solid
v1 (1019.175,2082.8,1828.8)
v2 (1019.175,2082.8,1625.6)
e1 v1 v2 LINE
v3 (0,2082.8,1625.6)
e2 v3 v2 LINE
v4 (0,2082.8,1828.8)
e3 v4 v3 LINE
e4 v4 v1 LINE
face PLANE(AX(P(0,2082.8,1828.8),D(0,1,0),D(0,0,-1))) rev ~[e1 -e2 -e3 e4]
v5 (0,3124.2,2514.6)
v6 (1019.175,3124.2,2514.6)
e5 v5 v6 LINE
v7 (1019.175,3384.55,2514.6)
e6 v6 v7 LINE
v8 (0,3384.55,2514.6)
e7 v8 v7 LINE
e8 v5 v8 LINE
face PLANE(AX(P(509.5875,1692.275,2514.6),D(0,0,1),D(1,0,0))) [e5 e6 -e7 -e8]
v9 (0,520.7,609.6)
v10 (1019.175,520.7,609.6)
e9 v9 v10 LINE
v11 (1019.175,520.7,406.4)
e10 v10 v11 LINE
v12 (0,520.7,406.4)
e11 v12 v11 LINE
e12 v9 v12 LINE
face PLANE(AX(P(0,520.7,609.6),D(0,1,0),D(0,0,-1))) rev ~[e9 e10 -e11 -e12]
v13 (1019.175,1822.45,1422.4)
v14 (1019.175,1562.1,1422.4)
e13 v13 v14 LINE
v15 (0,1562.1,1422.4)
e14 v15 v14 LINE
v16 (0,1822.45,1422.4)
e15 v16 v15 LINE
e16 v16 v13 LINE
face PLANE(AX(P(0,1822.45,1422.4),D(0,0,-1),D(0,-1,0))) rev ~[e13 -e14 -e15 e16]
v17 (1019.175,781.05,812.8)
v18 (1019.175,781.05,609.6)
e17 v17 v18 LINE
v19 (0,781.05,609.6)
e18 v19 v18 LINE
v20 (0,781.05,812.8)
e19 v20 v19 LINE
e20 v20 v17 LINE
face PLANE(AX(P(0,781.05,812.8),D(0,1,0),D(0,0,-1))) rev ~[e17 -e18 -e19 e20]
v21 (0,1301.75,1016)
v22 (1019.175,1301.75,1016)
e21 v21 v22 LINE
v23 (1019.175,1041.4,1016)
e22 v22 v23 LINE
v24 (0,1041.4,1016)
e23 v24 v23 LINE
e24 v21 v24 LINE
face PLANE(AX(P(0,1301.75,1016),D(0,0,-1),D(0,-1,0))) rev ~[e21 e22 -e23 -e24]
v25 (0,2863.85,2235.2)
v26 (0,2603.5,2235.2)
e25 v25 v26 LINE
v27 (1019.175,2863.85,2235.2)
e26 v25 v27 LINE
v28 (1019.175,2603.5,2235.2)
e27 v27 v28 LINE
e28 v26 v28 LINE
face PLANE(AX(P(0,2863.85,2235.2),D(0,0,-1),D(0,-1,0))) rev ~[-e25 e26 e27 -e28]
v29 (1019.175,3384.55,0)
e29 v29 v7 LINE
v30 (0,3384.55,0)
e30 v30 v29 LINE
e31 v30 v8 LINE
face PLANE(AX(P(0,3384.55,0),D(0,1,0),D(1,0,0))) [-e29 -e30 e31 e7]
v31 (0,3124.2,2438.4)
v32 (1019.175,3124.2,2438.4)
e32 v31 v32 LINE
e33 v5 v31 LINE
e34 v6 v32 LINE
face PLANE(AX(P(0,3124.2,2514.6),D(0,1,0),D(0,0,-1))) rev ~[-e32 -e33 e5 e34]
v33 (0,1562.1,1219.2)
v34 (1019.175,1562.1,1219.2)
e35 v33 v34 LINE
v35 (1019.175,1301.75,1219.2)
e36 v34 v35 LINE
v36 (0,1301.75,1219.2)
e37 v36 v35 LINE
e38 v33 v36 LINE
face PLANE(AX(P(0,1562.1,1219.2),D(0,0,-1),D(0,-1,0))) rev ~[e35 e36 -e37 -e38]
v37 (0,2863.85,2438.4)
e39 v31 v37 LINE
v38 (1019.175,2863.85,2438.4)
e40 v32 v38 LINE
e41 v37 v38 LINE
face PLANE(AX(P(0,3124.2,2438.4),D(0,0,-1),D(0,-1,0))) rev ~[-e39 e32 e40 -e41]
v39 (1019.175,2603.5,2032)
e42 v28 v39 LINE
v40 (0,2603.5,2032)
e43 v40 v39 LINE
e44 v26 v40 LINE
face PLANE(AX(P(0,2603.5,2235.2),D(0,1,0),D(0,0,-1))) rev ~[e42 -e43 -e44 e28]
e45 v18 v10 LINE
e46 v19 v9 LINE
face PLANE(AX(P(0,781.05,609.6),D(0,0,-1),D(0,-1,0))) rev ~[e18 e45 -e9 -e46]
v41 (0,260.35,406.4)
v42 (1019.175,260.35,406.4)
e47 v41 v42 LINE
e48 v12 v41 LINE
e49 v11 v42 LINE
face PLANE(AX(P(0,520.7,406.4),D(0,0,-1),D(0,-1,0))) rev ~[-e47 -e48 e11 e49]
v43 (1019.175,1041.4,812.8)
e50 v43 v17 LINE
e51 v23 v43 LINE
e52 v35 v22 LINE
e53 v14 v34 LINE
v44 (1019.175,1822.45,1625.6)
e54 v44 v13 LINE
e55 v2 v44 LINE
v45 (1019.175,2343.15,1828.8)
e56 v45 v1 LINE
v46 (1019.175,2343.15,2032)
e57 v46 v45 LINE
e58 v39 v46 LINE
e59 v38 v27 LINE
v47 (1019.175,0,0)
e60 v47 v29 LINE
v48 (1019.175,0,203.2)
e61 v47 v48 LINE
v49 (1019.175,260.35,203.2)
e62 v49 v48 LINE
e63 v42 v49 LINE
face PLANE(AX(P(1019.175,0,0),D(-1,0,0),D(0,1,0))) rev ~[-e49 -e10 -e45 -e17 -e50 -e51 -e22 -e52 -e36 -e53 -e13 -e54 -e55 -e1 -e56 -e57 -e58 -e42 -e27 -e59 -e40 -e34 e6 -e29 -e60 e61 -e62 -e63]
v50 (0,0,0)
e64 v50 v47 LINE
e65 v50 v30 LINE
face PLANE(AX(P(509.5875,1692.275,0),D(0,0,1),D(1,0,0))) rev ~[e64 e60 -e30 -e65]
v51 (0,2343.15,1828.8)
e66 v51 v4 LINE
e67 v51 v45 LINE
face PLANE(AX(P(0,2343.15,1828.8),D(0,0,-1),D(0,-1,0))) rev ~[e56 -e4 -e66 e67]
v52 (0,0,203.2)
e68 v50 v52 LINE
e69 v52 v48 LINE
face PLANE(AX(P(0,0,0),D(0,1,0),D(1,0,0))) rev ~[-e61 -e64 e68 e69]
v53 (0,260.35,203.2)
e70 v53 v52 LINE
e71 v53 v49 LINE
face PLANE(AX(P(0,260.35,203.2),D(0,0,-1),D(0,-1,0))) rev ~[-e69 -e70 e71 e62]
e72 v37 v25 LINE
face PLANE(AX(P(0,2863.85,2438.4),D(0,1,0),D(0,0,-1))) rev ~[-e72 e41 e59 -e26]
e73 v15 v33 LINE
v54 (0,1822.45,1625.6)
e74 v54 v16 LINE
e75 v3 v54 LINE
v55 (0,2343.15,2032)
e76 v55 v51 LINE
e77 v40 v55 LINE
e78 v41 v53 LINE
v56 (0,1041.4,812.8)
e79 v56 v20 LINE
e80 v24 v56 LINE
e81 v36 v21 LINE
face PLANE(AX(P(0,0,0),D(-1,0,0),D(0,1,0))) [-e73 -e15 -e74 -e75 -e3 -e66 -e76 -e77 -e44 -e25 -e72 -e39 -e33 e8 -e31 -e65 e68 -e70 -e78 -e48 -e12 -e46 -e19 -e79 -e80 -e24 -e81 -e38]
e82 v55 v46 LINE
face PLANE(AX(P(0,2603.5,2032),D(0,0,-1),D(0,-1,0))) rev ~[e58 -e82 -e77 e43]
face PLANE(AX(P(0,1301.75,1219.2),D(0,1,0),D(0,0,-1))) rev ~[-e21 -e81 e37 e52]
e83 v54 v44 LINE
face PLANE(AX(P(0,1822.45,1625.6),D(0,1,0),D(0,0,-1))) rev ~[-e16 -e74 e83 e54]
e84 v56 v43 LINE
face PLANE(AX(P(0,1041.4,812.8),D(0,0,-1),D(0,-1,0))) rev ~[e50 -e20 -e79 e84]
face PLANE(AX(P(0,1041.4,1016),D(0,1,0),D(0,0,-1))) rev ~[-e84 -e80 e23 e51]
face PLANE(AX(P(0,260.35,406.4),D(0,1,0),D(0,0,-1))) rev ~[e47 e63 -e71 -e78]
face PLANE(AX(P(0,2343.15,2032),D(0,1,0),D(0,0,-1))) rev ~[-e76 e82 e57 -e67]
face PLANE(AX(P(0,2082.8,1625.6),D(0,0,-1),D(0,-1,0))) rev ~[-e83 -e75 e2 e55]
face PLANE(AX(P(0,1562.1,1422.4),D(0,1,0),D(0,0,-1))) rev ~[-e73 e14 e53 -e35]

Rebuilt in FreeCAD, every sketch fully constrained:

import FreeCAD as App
import Part
import Sketcher
Q = App.Units.Quantity


def add_polygon(sketch, points):
    """Adds a closed chain of lines whose ends are joined by coincident constraints."""
    first, n = sketch.GeometryCount, len(points)
    for a, b in zip(points, points[1:] + points[:1]):
        sketch.addGeometry(Part.LineSegment(App.Vector(*a, 0), App.Vector(*b, 0)), False)
    for i in range(n):
        sketch.addConstraint(Sketcher.Constraint("Coincident", first + i, 2, first + (i + 1) % n, 1))

doc = App.newDocument("Part")
body = doc.addObject("PartDesign::Body", "Body")

# Sketch on XY plane
sketch1 = doc.addObject("Sketcher::SketchObject", "Sketch")
body.addObject(sketch1)
sketch1.AttachmentSupport = (doc.XY_Plane, [""])
sketch1.MapMode = "FlatFace"
add_polygon(sketch1, [(0, 3384.55), (0, 0), (1019.175, 0), (1019.175, 3384.55)])  # lines 0-3
sketch1.addConstraint([
    Sketcher.Constraint("Vertical", 0),
    Sketcher.Constraint("Horizontal", 1),
    Sketcher.Constraint("Vertical", 2),
    Sketcher.Constraint("Horizontal", 3),
    Sketcher.Constraint("Coincident", 0, 2, -1, 1),
    Sketcher.Constraint("DistanceY", 0, 2, 0, 1, Q("133.25 in")),
    Sketcher.Constraint("DistanceX", 1, 1, 1, 2, Q("40.125 in")),
])
pad1 = doc.addObject("PartDesign::Pad", "Pad")
body.addObject(pad1)
pad1.Profile = sketch1
pad1.Length = Q("99 in")

# Sketch on YZ plane
sketch2 = doc.addObject("Sketcher::SketchObject", "Sketch001")
body.addObject(sketch2)
sketch2.AttachmentSupport = (doc.YZ_Plane, [""])
sketch2.MapMode = "FlatFace"
add_polygon(sketch2, [(260.35, 203.2), (0, 203.2), (0, 2514.6), (3124.2, 2514.6), (3124.2, 2438.4), (2863.85, 2438.4), (2863.85, 2235.2), (2603.5, 2235.2), (2603.5, 2032), (2343.15, 2032), (2343.15, 1828.8), (2082.8, 1828.8), (2082.8, 1625.6), (1822.45, 1625.6), (1822.45, 1422.4), (1562.1, 1422.4), (1562.1, 1219.2), (1301.75, 1219.2), (1301.75, 1016), (1041.4, 1016), (1041.4, 812.8), (781.05, 812.8), (781.05, 609.6), (520.7, 609.6), (520.7, 406.4), (260.35, 406.4)])  # lines 0-25
sketch2.addConstraint([
    Sketcher.Constraint("Horizontal", 0),
    Sketcher.Constraint("Vertical", 1),
    Sketcher.Constraint("Horizontal", 2),
    Sketcher.Constraint("Vertical", 3),
    Sketcher.Constraint("Horizontal", 4),
    Sketcher.Constraint("Vertical", 5),
    Sketcher.Constraint("Horizontal", 6),
    Sketcher.Constraint("Vertical", 7),
    Sketcher.Constraint("Horizontal", 8),
    Sketcher.Constraint("Vertical", 9),
    Sketcher.Constraint("Horizontal", 10),
    Sketcher.Constraint("Vertical", 11),
    Sketcher.Constraint("Horizontal", 12),
    Sketcher.Constraint("Vertical", 13),
    Sketcher.Constraint("Horizontal", 14),
    Sketcher.Constraint("Vertical", 15),
    Sketcher.Constraint("Horizontal", 16),
    Sketcher.Constraint("Vertical", 17),
    Sketcher.Constraint("Horizontal", 18),
    Sketcher.Constraint("Vertical", 19),
    Sketcher.Constraint("Horizontal", 20),
    Sketcher.Constraint("Vertical", 21),
    Sketcher.Constraint("Horizontal", 22),
    Sketcher.Constraint("Vertical", 23),
    Sketcher.Constraint("Horizontal", 24),
    Sketcher.Constraint("Vertical", 25),
    Sketcher.Constraint("PointOnObject", 0, 2, -2),
    Sketcher.Constraint("Equal", 0, 4),
    Sketcher.Constraint("Equal", 4, 6),
    Sketcher.Constraint("Equal", 6, 8),
    Sketcher.Constraint("Equal", 8, 10),
    Sketcher.Constraint("Equal", 10, 12),
    Sketcher.Constraint("Equal", 12, 14),
    Sketcher.Constraint("Equal", 14, 16),
    Sketcher.Constraint("Equal", 16, 18),
    Sketcher.Constraint("Equal", 18, 20),
    Sketcher.Constraint("Equal", 20, 22),
    Sketcher.Constraint("Equal", 22, 24),
    Sketcher.Constraint("Equal", 5, 7),
    Sketcher.Constraint("Equal", 7, 9),
    Sketcher.Constraint("Equal", 9, 11),
    Sketcher.Constraint("Equal", 11, 13),
    Sketcher.Constraint("Equal", 13, 15),
    Sketcher.Constraint("Equal", 15, 17),
    Sketcher.Constraint("Equal", 17, 19),
    Sketcher.Constraint("Equal", 19, 21),
    Sketcher.Constraint("Equal", 21, 23),
    Sketcher.Constraint("Equal", 23, 25),
    Sketcher.Constraint("DistanceX", 2, 1, 2, 2, Q("123 in")),
    Sketcher.Constraint("DistanceY", 1, 1, 1, 2, Q("91 in")),
    Sketcher.Constraint("DistanceY", 3, 2, 3, 1, Q("3 in")),
    Sketcher.Constraint("DistanceY", -1, 1, 0, 2, Q("8 in")),
])
pocket1 = doc.addObject("PartDesign::Pocket", "Pocket")
body.addObject(pocket1)
pocket1.Profile = sketch2
pocket1.Length = Q("40.125 in")
pocket1.Reversed = True

doc.recompute()
